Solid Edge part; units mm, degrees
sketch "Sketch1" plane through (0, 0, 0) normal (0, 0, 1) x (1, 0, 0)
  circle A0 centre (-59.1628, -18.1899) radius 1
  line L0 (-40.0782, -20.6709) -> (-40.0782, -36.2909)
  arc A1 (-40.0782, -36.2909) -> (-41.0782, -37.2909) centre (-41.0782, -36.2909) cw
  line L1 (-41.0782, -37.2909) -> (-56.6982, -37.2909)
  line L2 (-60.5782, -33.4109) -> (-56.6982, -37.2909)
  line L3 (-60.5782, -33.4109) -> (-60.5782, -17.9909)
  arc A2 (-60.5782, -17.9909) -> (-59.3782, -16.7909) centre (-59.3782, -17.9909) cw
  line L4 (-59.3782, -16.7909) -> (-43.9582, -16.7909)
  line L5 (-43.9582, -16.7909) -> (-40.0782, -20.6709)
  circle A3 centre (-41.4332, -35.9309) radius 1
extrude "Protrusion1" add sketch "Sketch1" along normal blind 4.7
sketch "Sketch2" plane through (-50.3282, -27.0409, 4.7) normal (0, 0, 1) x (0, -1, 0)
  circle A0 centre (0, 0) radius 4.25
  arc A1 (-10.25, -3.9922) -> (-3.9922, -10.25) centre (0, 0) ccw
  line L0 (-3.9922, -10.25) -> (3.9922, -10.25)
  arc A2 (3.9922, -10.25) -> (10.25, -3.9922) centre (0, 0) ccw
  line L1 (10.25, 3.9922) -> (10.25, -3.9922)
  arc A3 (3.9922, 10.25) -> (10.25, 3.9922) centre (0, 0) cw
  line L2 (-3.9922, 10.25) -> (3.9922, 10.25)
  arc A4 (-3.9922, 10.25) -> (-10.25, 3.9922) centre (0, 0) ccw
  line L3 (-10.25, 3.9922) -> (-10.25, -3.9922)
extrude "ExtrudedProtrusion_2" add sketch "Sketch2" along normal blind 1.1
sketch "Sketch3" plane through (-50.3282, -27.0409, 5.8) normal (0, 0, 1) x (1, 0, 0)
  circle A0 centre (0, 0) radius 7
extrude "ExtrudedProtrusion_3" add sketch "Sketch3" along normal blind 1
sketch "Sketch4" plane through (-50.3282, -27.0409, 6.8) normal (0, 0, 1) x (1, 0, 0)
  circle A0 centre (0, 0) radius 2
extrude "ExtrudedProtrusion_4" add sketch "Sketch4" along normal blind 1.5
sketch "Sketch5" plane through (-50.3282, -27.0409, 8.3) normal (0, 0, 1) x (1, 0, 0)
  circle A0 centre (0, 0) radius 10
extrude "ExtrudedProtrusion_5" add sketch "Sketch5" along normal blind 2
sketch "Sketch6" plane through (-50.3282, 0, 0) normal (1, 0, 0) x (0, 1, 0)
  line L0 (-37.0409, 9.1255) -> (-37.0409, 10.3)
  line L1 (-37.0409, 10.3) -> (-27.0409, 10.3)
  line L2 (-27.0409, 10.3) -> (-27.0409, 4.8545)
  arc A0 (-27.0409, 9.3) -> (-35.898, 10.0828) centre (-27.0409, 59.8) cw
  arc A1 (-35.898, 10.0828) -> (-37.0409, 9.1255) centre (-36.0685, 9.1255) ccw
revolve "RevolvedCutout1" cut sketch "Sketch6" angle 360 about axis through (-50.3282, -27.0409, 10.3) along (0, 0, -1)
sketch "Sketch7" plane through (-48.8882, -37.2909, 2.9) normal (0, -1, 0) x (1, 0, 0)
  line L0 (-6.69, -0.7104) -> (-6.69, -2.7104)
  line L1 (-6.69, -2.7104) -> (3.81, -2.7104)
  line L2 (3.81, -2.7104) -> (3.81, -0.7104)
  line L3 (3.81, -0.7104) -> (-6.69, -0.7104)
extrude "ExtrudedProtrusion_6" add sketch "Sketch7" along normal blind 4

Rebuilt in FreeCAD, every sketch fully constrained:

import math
import FreeCAD as App
import Part
import Sketcher

V = App.Vector
Q = App.Units.Quantity


def add_polygon(sketch, points):
    """Adds a closed chain of lines whose ends are joined by coincident constraints."""
    first, n = sketch.GeometryCount, len(points)
    for a, b in zip(points, points[1:] + points[:1]):
        sketch.addGeometry(Part.LineSegment(App.Vector(*a, 0), App.Vector(*b, 0)), False)
    for i in range(n):
        sketch.addConstraint(Sketcher.Constraint("Coincident", first + i, 2, first + (i + 1) % n, 1))

doc = App.newDocument("Part")
body = doc.addObject("PartDesign::Body", "Body")

sketch1 = body.newObject("Sketcher::SketchObject", "Sketch")
sketch1.AttachmentSupport = (doc.getObject("XY_Plane"), [""])
sketch1.MapMode = "FlatFace"
sketch1.addGeometry([
    Part.LineSegment(V(-40.0782, -36.2909, 0), V(-40.0782, -20.6709, 0)),
    Part.LineSegment(V(-40.0782, -20.6709, 0), V(-43.9582, -16.7909, 0)),
    Part.LineSegment(V(-43.9582, -16.7909, 0), V(-59.3782, -16.7909, 0)),
    Part.ArcOfCircle(Part.Circle(V(-59.3782, -17.9909, 0), V(0, 0, 1), 1.2), math.radians(90), math.radians(180)),
    Part.LineSegment(V(-60.5782, -17.9909, 0), V(-60.5782, -33.4109, 0)),
    Part.LineSegment(V(-60.5782, -33.4109, 0), V(-56.6982, -37.2909, 0)),
    Part.LineSegment(V(-56.6982, -37.2909, 0), V(-41.0782, -37.2909, 0)),
    Part.ArcOfCircle(Part.Circle(V(-41.0782, -36.2909, 0), V(0, 0, 1), 1), math.radians(-90), math.radians(0)),
    Part.Circle(V(-41.4332, -35.9309, 0), V(0, 0, 1), 1),
    Part.Circle(V(-59.1628, -18.1899, 0), V(0, 0, 1), 1),
], False)
sketch1.addConstraint([
    Sketcher.Constraint("Coincident", 0, 2, 1, 1),
    Sketcher.Constraint("Coincident", 1, 2, 2, 1),
    Sketcher.Constraint("Tangent", 2, 2, 3, 1),
    Sketcher.Constraint("Tangent", 3, 2, 4, 1),
    Sketcher.Constraint("Coincident", 4, 2, 5, 1),
    Sketcher.Constraint("Coincident", 5, 2, 6, 1),
    Sketcher.Constraint("Tangent", 6, 2, 7, 1),
    Sketcher.Constraint("Tangent", 7, 2, 0, 1),
    Sketcher.Constraint("Vertical", 0),
    Sketcher.Constraint("Horizontal", 2),
    Sketcher.Constraint("Vertical", 4),
    Sketcher.Constraint("Horizontal", 6),
    Sketcher.Constraint("Equal", 7, 8),
    Sketcher.Constraint("Equal", 8, 9),
    Sketcher.Constraint("Parallel", 1, 5),
    Sketcher.Constraint("Equal", 6, 0),
    Sketcher.Constraint("Equal", 2, 4),
    Sketcher.Constraint("Diameter", 8, Q("2 mm")),
    Sketcher.Constraint("Radius", 3, Q("1.2 mm")),
    Sketcher.Constraint("Angle", 1, Q("135 deg")),
    Sketcher.Constraint("DistanceX", 2, 2, 2, 1, Q("15.42 mm")),
    Sketcher.Constraint("DistanceX", 3, 3, 7, 3, Q("18.3 mm")),
    Sketcher.Constraint("DistanceY", 9, 3, -1, 1, Q("18.19 mm")),
    Sketcher.Constraint("DistanceY", 7, 3, 8, 3, Q("0.36 mm")),
    Sketcher.Constraint("DistanceY", 3, 3, -1, 1, Q("17.991 mm")),
    Sketcher.Constraint("DistanceX", 8, 3, 7, 3, Q("0.355 mm")),
    Sketcher.Constraint("DistanceX", 3, 3, -1, 1, Q("59.3782 mm")),
    Sketcher.Constraint("DistanceX", 9, 3, -1, 1, Q("59.1628 mm")),
])
pad1 = body.newObject("PartDesign::Pad", "Pad")
pad1.Profile = sketch1
pad1.Length = 4.7

sketch2 = body.newObject("Sketcher::SketchObject", "Sketch001")
sketch2.AttachmentSupport = (doc.getObject("XY_Plane"), [""])
sketch2.MapMode = "FlatFace"
sketch2.AttachmentOffset = App.Placement(V(0, 0, 4.7), App.Rotation())
sketch2.addGeometry([
    Part.LineSegment(V(-46.336, -16.7909, 0), V(-54.3204, -16.7909, 0)),
    Part.ArcOfCircle(Part.Circle(V(-50.3282, -27.0409, 0), V(0, 0, 1), 11.000007), math.radians(111.280064), math.radians(158.719936)),
    Part.LineSegment(V(-60.5782, -23.0487, 0), V(-60.5782, -31.0331, 0)),
    Part.ArcOfCircle(Part.Circle(V(-50.3282, -27.0409, 0), V(0, 0, 1), 11.000007), math.radians(-158.719936), math.radians(-111.280064)),
    Part.LineSegment(V(-54.3204, -37.2909, 0), V(-46.336, -37.2909, 0)),
    Part.ArcOfCircle(Part.Circle(V(-50.3282, -27.0409, 0), V(0, 0, 1), 11.000007), math.radians(-68.719936), math.radians(-21.280064)),
    Part.LineSegment(V(-40.0782, -31.0331, 0), V(-40.0782, -23.0487, 0)),
    Part.ArcOfCircle(Part.Circle(V(-50.3282, -27.0409, 0), V(0, 0, 1), 11.000007), math.radians(21.280064), math.radians(68.719936)),
    Part.Circle(V(-50.3282, -27.0409, 0), V(0, 0, 1), 4.25),
], False)
sketch2.addConstraint([
    Sketcher.Constraint("Coincident", 0, 2, 1, 1),
    Sketcher.Constraint("Coincident", 1, 2, 2, 1),
    Sketcher.Constraint("Coincident", 2, 2, 3, 1),
    Sketcher.Constraint("Coincident", 3, 2, 4, 1),
    Sketcher.Constraint("Coincident", 4, 2, 5, 1),
    Sketcher.Constraint("Coincident", 5, 2, 6, 1),
    Sketcher.Constraint("Coincident", 6, 2, 7, 1),
    Sketcher.Constraint("Coincident", 7, 2, 0, 1),
    Sketcher.Constraint("Horizontal", 0),
    Sketcher.Constraint("Vertical", 2),
    Sketcher.Constraint("Horizontal", 4),
    Sketcher.Constraint("Vertical", 6),
    Sketcher.Constraint("Coincident", 3, 3, 1, 3),
    Sketcher.Constraint("Coincident", 5, 3, 1, 3),
    Sketcher.Constraint("Coincident", 7, 3, 1, 3),
    Sketcher.Constraint("Coincident", 8, 3, 1, 3),
    Sketcher.Constraint("Equal", 1, 3),
    Sketcher.Constraint("Equal", 3, 5),
    Sketcher.Constraint("Equal", 5, 7),
    Sketcher.Constraint("Horizontal", 2, 2, 5, 2),
    Sketcher.Constraint("Vertical", 0, 2, 3, 2),
    Sketcher.Constraint("Equal", 4, 2),
    Sketcher.Constraint("Radius", 1, Q("11 mm")),
    Sketcher.Constraint("Diameter", 8, Q("8.5 mm")),
    Sketcher.Constraint("DistanceY", 1, 3, 0, 2, Q("10.25 mm")),
    Sketcher.Constraint("DistanceY", 1, 3, -1, 1, Q("27.041 mm")),
    Sketcher.Constraint("DistanceX", 4, 2, -1, 1, Q("46.336 mm")),
])
pad2 = body.newObject("PartDesign::Pad", "Pad001")
pad2.Profile = sketch2
pad2.Length = 1.1

sketch3 = body.newObject("Sketcher::SketchObject", "Sketch002")
sketch3.AttachmentSupport = (doc.getObject("XY_Plane"), [""])
sketch3.MapMode = "FlatFace"
sketch3.AttachmentOffset = App.Placement(V(0, 0, 5.8), App.Rotation())
sketch3.addGeometry(Part.Circle(V(-50.3282, -27.0409, 0), V(0, 0, 1), 7), False)
sketch3.addConstraint([
    Sketcher.Constraint("Diameter", 0, Q("14 mm")),
    Sketcher.Constraint("DistanceY", 0, 3, -1, 1, Q("27.041 mm")),
    Sketcher.Constraint("DistanceX", 0, 3, -1, 1, Q("50.3282 mm")),
])
pad3 = body.newObject("PartDesign::Pad", "Pad002")
pad3.Profile = sketch3
pad3.Length = 1

sketch4 = body.newObject("Sketcher::SketchObject", "Sketch003")
sketch4.AttachmentSupport = (doc.getObject("XY_Plane"), [""])
sketch4.MapMode = "FlatFace"
sketch4.AttachmentOffset = App.Placement(V(0, 0, 6.8), App.Rotation())
sketch4.addGeometry(Part.Circle(V(-50.3282, -27.0409, 0), V(0, 0, 1), 2), False)
sketch4.addConstraint([
    Sketcher.Constraint("Diameter", 0, Q("4 mm")),
    Sketcher.Constraint("DistanceY", 0, 3, -1, 1, Q("27.041 mm")),
    Sketcher.Constraint("DistanceX", 0, 3, -1, 1, Q("50.3282 mm")),
])
pad4 = body.newObject("PartDesign::Pad", "Pad003")
pad4.Profile = sketch4
pad4.Length = 1.5

sketch5 = body.newObject("Sketcher::SketchObject", "Sketch004")
sketch5.AttachmentSupport = (doc.getObject("XY_Plane"), [""])
sketch5.MapMode = "FlatFace"
sketch5.AttachmentOffset = App.Placement(V(0, 0, 8.3), App.Rotation())
sketch5.addGeometry(Part.Circle(V(-50.3282, -27.0409, 0), V(0, 0, 1), 10), False)
sketch5.addConstraint([
    Sketcher.Constraint("Diameter", 0, Q("20 mm")),
    Sketcher.Constraint("DistanceY", 0, 3, -1, 1, Q("27.041 mm")),
    Sketcher.Constraint("DistanceX", 0, 3, -1, 1, Q("50.3282 mm")),
])
pad5 = body.newObject("PartDesign::Pad", "Pad004")
pad5.Profile = sketch5
pad5.Length = 2

sketch6 = body.newObject("Sketcher::SketchObject", "Sketch005")
sketch6.AttachmentSupport = (doc.getObject("YZ_Plane"), [""])
sketch6.MapMode = "FlatFace"
sketch6.AttachmentOffset = App.Placement(V(0, 0, -50.3282), App.Rotation())
sketch6.addGeometry([
    Part.LineSegment(V(-37.0409, 10.3, 0), V(-37.0409, 9.1255, 0)),
    Part.ArcOfCircle(Part.Circle(V(-36.0685, 9.1255, 0), V(0, 0, 1), 0.972365), math.radians(79.901224), math.radians(180)),
    Part.ArcOfCircle(Part.Circle(V(-27.041001, 59.7977, 0), V(0, 0, 1), 50.4977), math.radians(-100.101593), math.radians(-89.999885)),
    Part.LineSegment(V(-27.0409, 9.3, 0), V(-27.0409, 10.3, 0)),
    Part.LineSegment(V(-27.0409, 10.3, 0), V(-37.0409, 10.3, 0)),
], False)
sketch6.addGeometry(Part.LineSegment(V(-27.0409, 59.7977, 0), V(-27.0409, 9.1255, 0)), True)
sketch6.addConstraint([
    Sketcher.Constraint("Tangent", 0, 2, 1, 2),
    Sketcher.Constraint("Tangent", 1, 1, 2, 1),
    Sketcher.Constraint("Coincident", 2, 2, 3, 1),
    Sketcher.Constraint("Coincident", 3, 2, 4, 1),
    Sketcher.Constraint("Coincident", 4, 2, 0, 1),
    Sketcher.Constraint("Vertical", 0),
    Sketcher.Constraint("Vertical", 3),
    Sketcher.Constraint("Horizontal", 4),
    Sketcher.Constraint("Vertical", 5),
    Sketcher.Constraint("Coincident", 5, 1, 2, 3),
    Sketcher.Constraint("Horizontal", 0, 2, 5, 2),
    Sketcher.Constraint("Vertical", 3, 2, 5, 1),
    Sketcher.Constraint("DistanceX", 4, 2, 4, 1, Q("10 mm")),
    Sketcher.Constraint("DistanceY", 3, 1, 3, 2, Q("1 mm")),
    Sketcher.Constraint("DistanceY", -1, 1, 2, 2, Q("9.3 mm")),
    Sketcher.Constraint("Radius", 1, Q("0.9724 mm")),
    Sketcher.Constraint("Radius", 2, Q("50.4977 mm")),
    Sketcher.Constraint("DistanceX", 2, 3, -1, 1, Q("27.041 mm")),
])
groove = body.newObject("PartDesign::Groove", "Groove")
groove.Profile = sketch6
groove.ReferenceAxis = (sketch6, ["Axis0"])
groove.Angle = 360

sketch7 = body.newObject("Sketcher::SketchObject", "Sketch006")
sketch7.AttachmentSupport = (doc.getObject("XZ_Plane"), [""])
sketch7.MapMode = "FlatFace"
sketch7.AttachmentOffset = App.Placement(V(0, 0, 37.2909), App.Rotation())
add_polygon(sketch7, [(-45.0782, 2.1896), (-55.5782, 2.1896), (-55.5782, 0.1896), (-45.0782, 0.1896)])
sketch7.addConstraint([
    Sketcher.Constraint("Horizontal", 0),
    Sketcher.Constraint("Vertical", 1),
    Sketcher.Constraint("Horizontal", 2),
    Sketcher.Constraint("Vertical", 3),
    Sketcher.Constraint("DistanceY", 1, 2, 1, 1, Q("2 mm")),
    Sketcher.Constraint("DistanceX", 0, 2, 0, 1, Q("10.5 mm")),
    Sketcher.Constraint("DistanceX", 0, 2, -1, 1, Q("55.5782 mm")),
    Sketcher.Constraint("DistanceY", -1, 1, 0, 2, Q("2.1896 mm")),
])
pad6 = body.newObject("PartDesign::Pad", "Pad005")
pad6.Profile = sketch7
pad6.Length = 4

doc.recompute()
